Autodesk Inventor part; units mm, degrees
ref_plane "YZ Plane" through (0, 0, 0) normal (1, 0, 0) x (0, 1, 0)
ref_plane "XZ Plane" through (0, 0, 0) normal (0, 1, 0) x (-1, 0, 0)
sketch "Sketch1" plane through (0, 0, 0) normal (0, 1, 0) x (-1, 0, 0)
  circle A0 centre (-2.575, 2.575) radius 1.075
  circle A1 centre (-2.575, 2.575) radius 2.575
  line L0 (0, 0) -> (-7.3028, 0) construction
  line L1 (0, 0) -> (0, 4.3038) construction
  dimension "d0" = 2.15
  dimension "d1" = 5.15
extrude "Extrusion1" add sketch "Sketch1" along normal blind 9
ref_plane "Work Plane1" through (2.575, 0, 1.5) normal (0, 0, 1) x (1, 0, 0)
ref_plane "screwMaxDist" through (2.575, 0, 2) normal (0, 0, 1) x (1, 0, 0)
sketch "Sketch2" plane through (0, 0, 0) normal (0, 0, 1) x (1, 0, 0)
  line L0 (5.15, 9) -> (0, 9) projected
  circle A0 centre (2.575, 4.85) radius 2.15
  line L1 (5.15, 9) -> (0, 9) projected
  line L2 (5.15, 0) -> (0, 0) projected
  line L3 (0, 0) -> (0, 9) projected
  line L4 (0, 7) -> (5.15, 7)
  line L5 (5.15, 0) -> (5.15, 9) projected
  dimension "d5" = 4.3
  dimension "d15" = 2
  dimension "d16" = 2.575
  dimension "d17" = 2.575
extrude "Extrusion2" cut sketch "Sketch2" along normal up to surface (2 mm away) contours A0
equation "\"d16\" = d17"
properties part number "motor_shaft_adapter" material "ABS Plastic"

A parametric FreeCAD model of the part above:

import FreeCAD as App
import Part
import Sketcher
from FreeCAD import Vector

doc = App.newDocument("Part")
body = doc.addObject("PartDesign::Body", "Body")

sketch1 = body.newObject("Sketcher::SketchObject", "Sketch")
sketch1.AttachmentSupport = (doc.getObject("XZ_Plane"), [""])
sketch1.MapMode = "FlatFace"
sketch1.addGeometry([
    Part.Circle(Vector(2.575, 2.575, 0), Vector(0, 0, 1), 2.575),
    Part.Circle(Vector(2.575, 2.575, 0), Vector(0, 0, 1), 1.075),
], False)
sketch1.addConstraint([
    Sketcher.Constraint("Coincident", 1, 3, 0, 3),
    Sketcher.Constraint("Diameter", 0, 5.15),
    Sketcher.Constraint("Diameter", 1, 2.15),
    Sketcher.Constraint("DistanceX", -1, 1, 0, 3, 2.575),
    Sketcher.Constraint("DistanceY", -1, 1, 0, 3, 2.575),
])
pad1 = body.newObject("PartDesign::Pad", "Pad")
pad1.Profile = sketch1
pad1.Length = 9
pad1.Reversed = True

sketch2 = body.newObject("Sketcher::SketchObject", "Sketch001")
sketch2.AttachmentSupport = (doc.getObject("XY_Plane"), [""])
sketch2.MapMode = "FlatFace"
sketch2.addGeometry(Part.Circle(Vector(2.575, 4.85, 0), Vector(0, 0, 1), 2.15), False)
sketch2.addConstraint([
    Sketcher.Constraint("Diameter", 0, 4.3),
    Sketcher.Constraint("DistanceX", -1, 1, 0, 3, 2.575),
    Sketcher.Constraint("DistanceY", -1, 1, 0, 3, 4.85),
])
pocket1 = body.newObject("PartDesign::Pocket", "Pocket")
pocket1.Profile = sketch2
pocket1.Length = 2
pocket1.Reversed = True

doc.recompute()
